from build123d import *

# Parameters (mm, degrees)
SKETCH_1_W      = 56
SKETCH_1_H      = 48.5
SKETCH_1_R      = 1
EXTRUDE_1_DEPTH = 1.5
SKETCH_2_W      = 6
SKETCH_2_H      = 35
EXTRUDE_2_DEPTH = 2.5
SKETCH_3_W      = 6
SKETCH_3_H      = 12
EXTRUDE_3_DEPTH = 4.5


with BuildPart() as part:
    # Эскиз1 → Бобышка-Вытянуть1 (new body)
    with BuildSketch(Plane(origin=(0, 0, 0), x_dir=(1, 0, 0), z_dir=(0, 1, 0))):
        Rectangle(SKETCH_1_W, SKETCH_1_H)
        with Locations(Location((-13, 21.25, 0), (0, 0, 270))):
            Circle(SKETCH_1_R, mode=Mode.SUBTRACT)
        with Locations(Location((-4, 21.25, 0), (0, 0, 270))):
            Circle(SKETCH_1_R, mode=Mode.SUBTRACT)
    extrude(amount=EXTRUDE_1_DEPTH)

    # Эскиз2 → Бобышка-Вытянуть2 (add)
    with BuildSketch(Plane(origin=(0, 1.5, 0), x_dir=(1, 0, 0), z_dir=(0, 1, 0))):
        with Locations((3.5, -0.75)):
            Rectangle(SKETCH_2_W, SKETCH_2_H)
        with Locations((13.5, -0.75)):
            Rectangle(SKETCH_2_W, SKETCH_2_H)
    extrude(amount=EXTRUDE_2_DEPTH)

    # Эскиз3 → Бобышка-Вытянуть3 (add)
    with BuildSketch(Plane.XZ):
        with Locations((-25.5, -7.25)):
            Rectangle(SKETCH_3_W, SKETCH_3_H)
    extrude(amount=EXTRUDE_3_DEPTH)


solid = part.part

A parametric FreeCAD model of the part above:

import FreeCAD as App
import Part
import Sketcher
from FreeCAD import Vector
Q = App.Units.Quantity

doc = App.newDocument("Part")
body = doc.addObject("PartDesign::Body", "Body")

# Sketch on XZ plane
sketch1 = body.newObject("Sketcher::SketchObject", "Sketch")
sketch1.AttachmentSupport = (doc.getObject("XZ_Plane"), [""])
sketch1.MapMode = "FlatFace"
sketch1.addGeometry([
    Part.LineSegment(Vector(-28, -24.2, 0), Vector(-28, 24.2, 0)),  # 0
    Part.LineSegment(Vector(-28, 24.2, 0), Vector(28, 24.2, 0)),  # 1
    Part.LineSegment(Vector(28, 24.2, 0), Vector(28, -24.2, 0)),  # 2
    Part.LineSegment(Vector(28, -24.2, 0), Vector(-28, -24.2, 0)),  # 3
    Part.Circle(Vector(-13, -21.2, 0), Vector(0, 0, 1), 1),  # 4
    Part.Circle(Vector(-4, -21.2, 0), Vector(0, 0, 1), 1),  # 5
], False)
sketch1.addConstraint([
    Sketcher.Constraint("Coincident", 0, 2, 1, 1),
    Sketcher.Constraint("Coincident", 1, 2, 2, 1),
    Sketcher.Constraint("Coincident", 2, 2, 3, 1),
    Sketcher.Constraint("Coincident", 3, 2, 0, 1),
    Sketcher.Constraint("Vertical", 0),
    Sketcher.Constraint("Horizontal", 1),
    Sketcher.Constraint("Vertical", 2),
    Sketcher.Constraint("Horizontal", 3),
    Sketcher.Constraint("Equal", 4, 5),
    Sketcher.Constraint("Symmetric", 0, 2, 2, 2, -1, 1),
    Sketcher.Constraint("Horizontal", 4, 3, 5, 3),
    Sketcher.Constraint("Diameter", 4, Q("2 mm")),
    Sketcher.Constraint("DistanceX", 1, 1, 1, 2, Q("56 mm")),
    Sketcher.Constraint("DistanceY", 0, 1, 0, 2, Q("48.5 mm")),
    Sketcher.Constraint("DistanceX", 4, 3, -1, 1, Q("13 mm")),
    Sketcher.Constraint("DistanceX", 5, 3, -1, 1, Q("4 mm")),
    Sketcher.Constraint("DistanceY", 2, 2, 5, 3, Q("3 mm")),
])
pad1 = body.newObject("PartDesign::Pad", "Pad")
pad1.Profile = sketch1
pad1.Length = 1.5
pad1.Reversed = True

# Sketch on XZ plane
sketch2 = body.newObject("Sketcher::SketchObject", "Sketch001")
sketch2.AttachmentSupport = (doc.getObject("XZ_Plane"), [""])
sketch2.MapMode = "FlatFace"
sketch2.AttachmentOffset = App.Placement(Vector(0, 0, -1.5), App.Rotation())
sketch2.addGeometry([
    Part.LineSegment(Vector(0, -17, 0), Vector(0, 18, 0)),  # 0
    Part.LineSegment(Vector(0, 18, 0), Vector(6, 18, 0)),  # 1
    Part.LineSegment(Vector(6, 18, 0), Vector(6, -17, 0)),  # 2
    Part.LineSegment(Vector(6, -17, 0), Vector(0, -17, 0)),  # 3
    Part.LineSegment(Vector(10, -17, 0), Vector(10, 18, 0)),  # 4
    Part.LineSegment(Vector(10, 18, 0), Vector(16, 18, 0)),  # 5
    Part.LineSegment(Vector(16, 18, 0), Vector(16, -17, 0)),  # 6
    Part.LineSegment(Vector(16, -17, 0), Vector(10, -17, 0)),  # 7
], False)
sketch2.addConstraint([
    Sketcher.Constraint("Coincident", 0, 2, 1, 1),
    Sketcher.Constraint("Coincident", 1, 2, 2, 1),
    Sketcher.Constraint("Coincident", 2, 2, 3, 1),
    Sketcher.Constraint("Coincident", 3, 2, 0, 1),
    Sketcher.Constraint("Coincident", 4, 2, 5, 1),
    Sketcher.Constraint("Coincident", 5, 2, 6, 1),
    Sketcher.Constraint("Coincident", 6, 2, 7, 1),
    Sketcher.Constraint("Coincident", 7, 2, 4, 1),
    Sketcher.Constraint("Vertical", 0),
    Sketcher.Constraint("Horizontal", 1),
    Sketcher.Constraint("Vertical", 2),
    Sketcher.Constraint("Horizontal", 3),
    Sketcher.Constraint("Vertical", 4),
    Sketcher.Constraint("Horizontal", 5),
    Sketcher.Constraint("Vertical", 6),
    Sketcher.Constraint("Horizontal", 7),
    Sketcher.Constraint("Horizontal", 1, 2, 4, 2),
    Sketcher.Constraint("Horizontal", 3, 2, 6, 2),
    Sketcher.Constraint("Equal", 3, 5),
    Sketcher.Constraint("DistanceX", 1, 1, 1, 2, Q("6 mm")),
    Sketcher.Constraint("DistanceY", 0, 1, 0, 2, Q("35 mm")),
    Sketcher.Constraint("DistanceX", 1, 2, 4, 2, Q("4 mm")),
    Sketcher.Constraint("DistanceX", -1, 1, 0, 2, Q("0.5 mm")),
    Sketcher.Constraint("DistanceY", -1, 1, 0, 2, Q("18.25 mm")),
])
pad2 = body.newObject("PartDesign::Pad", "Pad001")
pad2.Profile = sketch2
pad2.Length = 2.5
pad2.Reversed = True

# Sketch on XZ plane
sketch3 = body.newObject("Sketcher::SketchObject", "Sketch002")
sketch3.AttachmentSupport = (doc.getObject("XZ_Plane"), [""])
sketch3.MapMode = "FlatFace"
sketch3.addGeometry([
    Part.LineSegment(Vector(-28, -1, 0), Vector(-28, -13, 0)),
    Part.LineSegment(Vector(-28, -13, 0), Vector(-22, -13, 0)),
    Part.LineSegment(Vector(-22, -13, 0), Vector(-22, -1, 0)),
    Part.LineSegment(Vector(-22, -1, 0), Vector(-28, -1, 0)),
], False)
sketch3.addConstraint([
    Sketcher.Constraint("Coincident", 0, 2, 1, 1),
    Sketcher.Constraint("Coincident", 1, 2, 2, 1),
    Sketcher.Constraint("Coincident", 2, 2, 3, 1),
    Sketcher.Constraint("Coincident", 3, 2, 0, 1),
    Sketcher.Constraint("Vertical", 0),
    Sketcher.Constraint("Horizontal", 1),
    Sketcher.Constraint("Vertical", 2),
    Sketcher.Constraint("Horizontal", 3),
    Sketcher.Constraint("DistanceX", 1, 1, 1, 2, Q("6 mm")),
    Sketcher.Constraint("DistanceY", 0, 2, 0, 1, Q("12 mm")),
    Sketcher.Constraint("DistanceX", 0, 2, -1, 1, Q("28.5 mm")),
    Sketcher.Constraint("DistanceY", 0, 2, -1, 1, Q("13.25 mm")),
])
pad3 = body.newObject("PartDesign::Pad", "Pad002")
pad3.Profile = sketch3
pad3.Length = 4.5

doc.recompute()
